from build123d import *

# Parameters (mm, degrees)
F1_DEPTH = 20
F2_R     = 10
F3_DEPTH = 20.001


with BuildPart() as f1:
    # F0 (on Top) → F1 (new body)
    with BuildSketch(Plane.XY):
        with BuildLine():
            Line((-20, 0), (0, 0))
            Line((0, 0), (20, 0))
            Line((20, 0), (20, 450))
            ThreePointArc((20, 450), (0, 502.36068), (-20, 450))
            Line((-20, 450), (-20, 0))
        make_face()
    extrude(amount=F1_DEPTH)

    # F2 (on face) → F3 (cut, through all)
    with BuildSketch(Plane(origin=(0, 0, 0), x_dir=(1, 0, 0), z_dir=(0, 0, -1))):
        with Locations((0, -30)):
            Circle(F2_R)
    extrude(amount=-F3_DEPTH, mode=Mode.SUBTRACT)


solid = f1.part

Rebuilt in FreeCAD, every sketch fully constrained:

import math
import FreeCAD as App
import Part
import Sketcher
Q = App.Units.Quantity

doc = App.newDocument("Part")
body = doc.addObject("PartDesign::Body", "Body")

sketch1 = doc.addObject("Sketcher::SketchObject", "Sketch")
body.addObject(sketch1)
sketch1.AttachmentSupport = (doc.XY_Plane, [""])
sketch1.MapMode = "FlatFace"
sketch1.addGeometry(Part.LineSegment(App.Vector(-20, 0, 0), App.Vector(20, 0, 0)), False)
sketch1.addGeometry(Part.LineSegment(App.Vector(20, 0, 0), App.Vector(20, 450, 0)), False)
sketch1.addGeometry(Part.ArcOfCircle(Part.Circle(App.Vector(0, 472, 0), App.Vector(0, 0, 1), 30), math.radians(-48), math.radians(228)), False)
sketch1.addGeometry(Part.LineSegment(App.Vector(-20, 450, 0), App.Vector(-20, 0, 0)), False)
sketch1.addConstraint(Sketcher.Constraint("Coincident", 0, 2, 1, 1))
sketch1.addConstraint(Sketcher.Constraint("Coincident", 1, 2, 2, 1))
sketch1.addConstraint(Sketcher.Constraint("Coincident", 2, 2, 3, 1))
sketch1.addConstraint(Sketcher.Constraint("Coincident", 3, 2, 0, 1))
sketch1.addConstraint(Sketcher.Constraint("Horizontal", 0))
sketch1.addConstraint(Sketcher.Constraint("Vertical", 1))
sketch1.addConstraint(Sketcher.Constraint("Vertical", 3))
sketch1.addConstraint(Sketcher.Constraint("Symmetric", 0, 2, 3, 2, -1, 1))
sketch1.addConstraint(Sketcher.Constraint("PointOnObject", 2, 3, -2))
sketch1.addConstraint(Sketcher.Constraint("Radius", 2, Q("30 mm")))
sketch1.addConstraint(Sketcher.Constraint("DistanceX", 0, 1, 0, 2, Q("40 mm")))
sketch1.addConstraint(Sketcher.Constraint("DistanceY", 1, 1, 1, 2, Q("450 mm")))
pad1 = doc.addObject("PartDesign::Pad", "Pad")
body.addObject(pad1)
pad1.Profile = sketch1
pad1.Length = 20

sketch2 = doc.addObject("Sketcher::SketchObject", "Sketch001")
body.addObject(sketch2)
sketch2.AttachmentSupport = (doc.XY_Plane, [""])
sketch2.MapMode = "FlatFace"
sketch2.addGeometry(Part.Circle(App.Vector(0, 30, 0), App.Vector(0, 0, 1), 10), False)
sketch2.addConstraint(Sketcher.Constraint("PointOnObject", 0, 3, -2))
sketch2.addConstraint(Sketcher.Constraint("Diameter", 0, Q("20 mm")))
sketch2.addConstraint(Sketcher.Constraint("DistanceY", -1, 1, 0, 3, Q("30 mm")))
pocket1 = doc.addObject("PartDesign::Pocket", "Pocket")
body.addObject(pocket1)
pocket1.Profile = sketch2
pocket1.Type = "ThroughAll"
pocket1.Reversed = True

doc.recompute()
